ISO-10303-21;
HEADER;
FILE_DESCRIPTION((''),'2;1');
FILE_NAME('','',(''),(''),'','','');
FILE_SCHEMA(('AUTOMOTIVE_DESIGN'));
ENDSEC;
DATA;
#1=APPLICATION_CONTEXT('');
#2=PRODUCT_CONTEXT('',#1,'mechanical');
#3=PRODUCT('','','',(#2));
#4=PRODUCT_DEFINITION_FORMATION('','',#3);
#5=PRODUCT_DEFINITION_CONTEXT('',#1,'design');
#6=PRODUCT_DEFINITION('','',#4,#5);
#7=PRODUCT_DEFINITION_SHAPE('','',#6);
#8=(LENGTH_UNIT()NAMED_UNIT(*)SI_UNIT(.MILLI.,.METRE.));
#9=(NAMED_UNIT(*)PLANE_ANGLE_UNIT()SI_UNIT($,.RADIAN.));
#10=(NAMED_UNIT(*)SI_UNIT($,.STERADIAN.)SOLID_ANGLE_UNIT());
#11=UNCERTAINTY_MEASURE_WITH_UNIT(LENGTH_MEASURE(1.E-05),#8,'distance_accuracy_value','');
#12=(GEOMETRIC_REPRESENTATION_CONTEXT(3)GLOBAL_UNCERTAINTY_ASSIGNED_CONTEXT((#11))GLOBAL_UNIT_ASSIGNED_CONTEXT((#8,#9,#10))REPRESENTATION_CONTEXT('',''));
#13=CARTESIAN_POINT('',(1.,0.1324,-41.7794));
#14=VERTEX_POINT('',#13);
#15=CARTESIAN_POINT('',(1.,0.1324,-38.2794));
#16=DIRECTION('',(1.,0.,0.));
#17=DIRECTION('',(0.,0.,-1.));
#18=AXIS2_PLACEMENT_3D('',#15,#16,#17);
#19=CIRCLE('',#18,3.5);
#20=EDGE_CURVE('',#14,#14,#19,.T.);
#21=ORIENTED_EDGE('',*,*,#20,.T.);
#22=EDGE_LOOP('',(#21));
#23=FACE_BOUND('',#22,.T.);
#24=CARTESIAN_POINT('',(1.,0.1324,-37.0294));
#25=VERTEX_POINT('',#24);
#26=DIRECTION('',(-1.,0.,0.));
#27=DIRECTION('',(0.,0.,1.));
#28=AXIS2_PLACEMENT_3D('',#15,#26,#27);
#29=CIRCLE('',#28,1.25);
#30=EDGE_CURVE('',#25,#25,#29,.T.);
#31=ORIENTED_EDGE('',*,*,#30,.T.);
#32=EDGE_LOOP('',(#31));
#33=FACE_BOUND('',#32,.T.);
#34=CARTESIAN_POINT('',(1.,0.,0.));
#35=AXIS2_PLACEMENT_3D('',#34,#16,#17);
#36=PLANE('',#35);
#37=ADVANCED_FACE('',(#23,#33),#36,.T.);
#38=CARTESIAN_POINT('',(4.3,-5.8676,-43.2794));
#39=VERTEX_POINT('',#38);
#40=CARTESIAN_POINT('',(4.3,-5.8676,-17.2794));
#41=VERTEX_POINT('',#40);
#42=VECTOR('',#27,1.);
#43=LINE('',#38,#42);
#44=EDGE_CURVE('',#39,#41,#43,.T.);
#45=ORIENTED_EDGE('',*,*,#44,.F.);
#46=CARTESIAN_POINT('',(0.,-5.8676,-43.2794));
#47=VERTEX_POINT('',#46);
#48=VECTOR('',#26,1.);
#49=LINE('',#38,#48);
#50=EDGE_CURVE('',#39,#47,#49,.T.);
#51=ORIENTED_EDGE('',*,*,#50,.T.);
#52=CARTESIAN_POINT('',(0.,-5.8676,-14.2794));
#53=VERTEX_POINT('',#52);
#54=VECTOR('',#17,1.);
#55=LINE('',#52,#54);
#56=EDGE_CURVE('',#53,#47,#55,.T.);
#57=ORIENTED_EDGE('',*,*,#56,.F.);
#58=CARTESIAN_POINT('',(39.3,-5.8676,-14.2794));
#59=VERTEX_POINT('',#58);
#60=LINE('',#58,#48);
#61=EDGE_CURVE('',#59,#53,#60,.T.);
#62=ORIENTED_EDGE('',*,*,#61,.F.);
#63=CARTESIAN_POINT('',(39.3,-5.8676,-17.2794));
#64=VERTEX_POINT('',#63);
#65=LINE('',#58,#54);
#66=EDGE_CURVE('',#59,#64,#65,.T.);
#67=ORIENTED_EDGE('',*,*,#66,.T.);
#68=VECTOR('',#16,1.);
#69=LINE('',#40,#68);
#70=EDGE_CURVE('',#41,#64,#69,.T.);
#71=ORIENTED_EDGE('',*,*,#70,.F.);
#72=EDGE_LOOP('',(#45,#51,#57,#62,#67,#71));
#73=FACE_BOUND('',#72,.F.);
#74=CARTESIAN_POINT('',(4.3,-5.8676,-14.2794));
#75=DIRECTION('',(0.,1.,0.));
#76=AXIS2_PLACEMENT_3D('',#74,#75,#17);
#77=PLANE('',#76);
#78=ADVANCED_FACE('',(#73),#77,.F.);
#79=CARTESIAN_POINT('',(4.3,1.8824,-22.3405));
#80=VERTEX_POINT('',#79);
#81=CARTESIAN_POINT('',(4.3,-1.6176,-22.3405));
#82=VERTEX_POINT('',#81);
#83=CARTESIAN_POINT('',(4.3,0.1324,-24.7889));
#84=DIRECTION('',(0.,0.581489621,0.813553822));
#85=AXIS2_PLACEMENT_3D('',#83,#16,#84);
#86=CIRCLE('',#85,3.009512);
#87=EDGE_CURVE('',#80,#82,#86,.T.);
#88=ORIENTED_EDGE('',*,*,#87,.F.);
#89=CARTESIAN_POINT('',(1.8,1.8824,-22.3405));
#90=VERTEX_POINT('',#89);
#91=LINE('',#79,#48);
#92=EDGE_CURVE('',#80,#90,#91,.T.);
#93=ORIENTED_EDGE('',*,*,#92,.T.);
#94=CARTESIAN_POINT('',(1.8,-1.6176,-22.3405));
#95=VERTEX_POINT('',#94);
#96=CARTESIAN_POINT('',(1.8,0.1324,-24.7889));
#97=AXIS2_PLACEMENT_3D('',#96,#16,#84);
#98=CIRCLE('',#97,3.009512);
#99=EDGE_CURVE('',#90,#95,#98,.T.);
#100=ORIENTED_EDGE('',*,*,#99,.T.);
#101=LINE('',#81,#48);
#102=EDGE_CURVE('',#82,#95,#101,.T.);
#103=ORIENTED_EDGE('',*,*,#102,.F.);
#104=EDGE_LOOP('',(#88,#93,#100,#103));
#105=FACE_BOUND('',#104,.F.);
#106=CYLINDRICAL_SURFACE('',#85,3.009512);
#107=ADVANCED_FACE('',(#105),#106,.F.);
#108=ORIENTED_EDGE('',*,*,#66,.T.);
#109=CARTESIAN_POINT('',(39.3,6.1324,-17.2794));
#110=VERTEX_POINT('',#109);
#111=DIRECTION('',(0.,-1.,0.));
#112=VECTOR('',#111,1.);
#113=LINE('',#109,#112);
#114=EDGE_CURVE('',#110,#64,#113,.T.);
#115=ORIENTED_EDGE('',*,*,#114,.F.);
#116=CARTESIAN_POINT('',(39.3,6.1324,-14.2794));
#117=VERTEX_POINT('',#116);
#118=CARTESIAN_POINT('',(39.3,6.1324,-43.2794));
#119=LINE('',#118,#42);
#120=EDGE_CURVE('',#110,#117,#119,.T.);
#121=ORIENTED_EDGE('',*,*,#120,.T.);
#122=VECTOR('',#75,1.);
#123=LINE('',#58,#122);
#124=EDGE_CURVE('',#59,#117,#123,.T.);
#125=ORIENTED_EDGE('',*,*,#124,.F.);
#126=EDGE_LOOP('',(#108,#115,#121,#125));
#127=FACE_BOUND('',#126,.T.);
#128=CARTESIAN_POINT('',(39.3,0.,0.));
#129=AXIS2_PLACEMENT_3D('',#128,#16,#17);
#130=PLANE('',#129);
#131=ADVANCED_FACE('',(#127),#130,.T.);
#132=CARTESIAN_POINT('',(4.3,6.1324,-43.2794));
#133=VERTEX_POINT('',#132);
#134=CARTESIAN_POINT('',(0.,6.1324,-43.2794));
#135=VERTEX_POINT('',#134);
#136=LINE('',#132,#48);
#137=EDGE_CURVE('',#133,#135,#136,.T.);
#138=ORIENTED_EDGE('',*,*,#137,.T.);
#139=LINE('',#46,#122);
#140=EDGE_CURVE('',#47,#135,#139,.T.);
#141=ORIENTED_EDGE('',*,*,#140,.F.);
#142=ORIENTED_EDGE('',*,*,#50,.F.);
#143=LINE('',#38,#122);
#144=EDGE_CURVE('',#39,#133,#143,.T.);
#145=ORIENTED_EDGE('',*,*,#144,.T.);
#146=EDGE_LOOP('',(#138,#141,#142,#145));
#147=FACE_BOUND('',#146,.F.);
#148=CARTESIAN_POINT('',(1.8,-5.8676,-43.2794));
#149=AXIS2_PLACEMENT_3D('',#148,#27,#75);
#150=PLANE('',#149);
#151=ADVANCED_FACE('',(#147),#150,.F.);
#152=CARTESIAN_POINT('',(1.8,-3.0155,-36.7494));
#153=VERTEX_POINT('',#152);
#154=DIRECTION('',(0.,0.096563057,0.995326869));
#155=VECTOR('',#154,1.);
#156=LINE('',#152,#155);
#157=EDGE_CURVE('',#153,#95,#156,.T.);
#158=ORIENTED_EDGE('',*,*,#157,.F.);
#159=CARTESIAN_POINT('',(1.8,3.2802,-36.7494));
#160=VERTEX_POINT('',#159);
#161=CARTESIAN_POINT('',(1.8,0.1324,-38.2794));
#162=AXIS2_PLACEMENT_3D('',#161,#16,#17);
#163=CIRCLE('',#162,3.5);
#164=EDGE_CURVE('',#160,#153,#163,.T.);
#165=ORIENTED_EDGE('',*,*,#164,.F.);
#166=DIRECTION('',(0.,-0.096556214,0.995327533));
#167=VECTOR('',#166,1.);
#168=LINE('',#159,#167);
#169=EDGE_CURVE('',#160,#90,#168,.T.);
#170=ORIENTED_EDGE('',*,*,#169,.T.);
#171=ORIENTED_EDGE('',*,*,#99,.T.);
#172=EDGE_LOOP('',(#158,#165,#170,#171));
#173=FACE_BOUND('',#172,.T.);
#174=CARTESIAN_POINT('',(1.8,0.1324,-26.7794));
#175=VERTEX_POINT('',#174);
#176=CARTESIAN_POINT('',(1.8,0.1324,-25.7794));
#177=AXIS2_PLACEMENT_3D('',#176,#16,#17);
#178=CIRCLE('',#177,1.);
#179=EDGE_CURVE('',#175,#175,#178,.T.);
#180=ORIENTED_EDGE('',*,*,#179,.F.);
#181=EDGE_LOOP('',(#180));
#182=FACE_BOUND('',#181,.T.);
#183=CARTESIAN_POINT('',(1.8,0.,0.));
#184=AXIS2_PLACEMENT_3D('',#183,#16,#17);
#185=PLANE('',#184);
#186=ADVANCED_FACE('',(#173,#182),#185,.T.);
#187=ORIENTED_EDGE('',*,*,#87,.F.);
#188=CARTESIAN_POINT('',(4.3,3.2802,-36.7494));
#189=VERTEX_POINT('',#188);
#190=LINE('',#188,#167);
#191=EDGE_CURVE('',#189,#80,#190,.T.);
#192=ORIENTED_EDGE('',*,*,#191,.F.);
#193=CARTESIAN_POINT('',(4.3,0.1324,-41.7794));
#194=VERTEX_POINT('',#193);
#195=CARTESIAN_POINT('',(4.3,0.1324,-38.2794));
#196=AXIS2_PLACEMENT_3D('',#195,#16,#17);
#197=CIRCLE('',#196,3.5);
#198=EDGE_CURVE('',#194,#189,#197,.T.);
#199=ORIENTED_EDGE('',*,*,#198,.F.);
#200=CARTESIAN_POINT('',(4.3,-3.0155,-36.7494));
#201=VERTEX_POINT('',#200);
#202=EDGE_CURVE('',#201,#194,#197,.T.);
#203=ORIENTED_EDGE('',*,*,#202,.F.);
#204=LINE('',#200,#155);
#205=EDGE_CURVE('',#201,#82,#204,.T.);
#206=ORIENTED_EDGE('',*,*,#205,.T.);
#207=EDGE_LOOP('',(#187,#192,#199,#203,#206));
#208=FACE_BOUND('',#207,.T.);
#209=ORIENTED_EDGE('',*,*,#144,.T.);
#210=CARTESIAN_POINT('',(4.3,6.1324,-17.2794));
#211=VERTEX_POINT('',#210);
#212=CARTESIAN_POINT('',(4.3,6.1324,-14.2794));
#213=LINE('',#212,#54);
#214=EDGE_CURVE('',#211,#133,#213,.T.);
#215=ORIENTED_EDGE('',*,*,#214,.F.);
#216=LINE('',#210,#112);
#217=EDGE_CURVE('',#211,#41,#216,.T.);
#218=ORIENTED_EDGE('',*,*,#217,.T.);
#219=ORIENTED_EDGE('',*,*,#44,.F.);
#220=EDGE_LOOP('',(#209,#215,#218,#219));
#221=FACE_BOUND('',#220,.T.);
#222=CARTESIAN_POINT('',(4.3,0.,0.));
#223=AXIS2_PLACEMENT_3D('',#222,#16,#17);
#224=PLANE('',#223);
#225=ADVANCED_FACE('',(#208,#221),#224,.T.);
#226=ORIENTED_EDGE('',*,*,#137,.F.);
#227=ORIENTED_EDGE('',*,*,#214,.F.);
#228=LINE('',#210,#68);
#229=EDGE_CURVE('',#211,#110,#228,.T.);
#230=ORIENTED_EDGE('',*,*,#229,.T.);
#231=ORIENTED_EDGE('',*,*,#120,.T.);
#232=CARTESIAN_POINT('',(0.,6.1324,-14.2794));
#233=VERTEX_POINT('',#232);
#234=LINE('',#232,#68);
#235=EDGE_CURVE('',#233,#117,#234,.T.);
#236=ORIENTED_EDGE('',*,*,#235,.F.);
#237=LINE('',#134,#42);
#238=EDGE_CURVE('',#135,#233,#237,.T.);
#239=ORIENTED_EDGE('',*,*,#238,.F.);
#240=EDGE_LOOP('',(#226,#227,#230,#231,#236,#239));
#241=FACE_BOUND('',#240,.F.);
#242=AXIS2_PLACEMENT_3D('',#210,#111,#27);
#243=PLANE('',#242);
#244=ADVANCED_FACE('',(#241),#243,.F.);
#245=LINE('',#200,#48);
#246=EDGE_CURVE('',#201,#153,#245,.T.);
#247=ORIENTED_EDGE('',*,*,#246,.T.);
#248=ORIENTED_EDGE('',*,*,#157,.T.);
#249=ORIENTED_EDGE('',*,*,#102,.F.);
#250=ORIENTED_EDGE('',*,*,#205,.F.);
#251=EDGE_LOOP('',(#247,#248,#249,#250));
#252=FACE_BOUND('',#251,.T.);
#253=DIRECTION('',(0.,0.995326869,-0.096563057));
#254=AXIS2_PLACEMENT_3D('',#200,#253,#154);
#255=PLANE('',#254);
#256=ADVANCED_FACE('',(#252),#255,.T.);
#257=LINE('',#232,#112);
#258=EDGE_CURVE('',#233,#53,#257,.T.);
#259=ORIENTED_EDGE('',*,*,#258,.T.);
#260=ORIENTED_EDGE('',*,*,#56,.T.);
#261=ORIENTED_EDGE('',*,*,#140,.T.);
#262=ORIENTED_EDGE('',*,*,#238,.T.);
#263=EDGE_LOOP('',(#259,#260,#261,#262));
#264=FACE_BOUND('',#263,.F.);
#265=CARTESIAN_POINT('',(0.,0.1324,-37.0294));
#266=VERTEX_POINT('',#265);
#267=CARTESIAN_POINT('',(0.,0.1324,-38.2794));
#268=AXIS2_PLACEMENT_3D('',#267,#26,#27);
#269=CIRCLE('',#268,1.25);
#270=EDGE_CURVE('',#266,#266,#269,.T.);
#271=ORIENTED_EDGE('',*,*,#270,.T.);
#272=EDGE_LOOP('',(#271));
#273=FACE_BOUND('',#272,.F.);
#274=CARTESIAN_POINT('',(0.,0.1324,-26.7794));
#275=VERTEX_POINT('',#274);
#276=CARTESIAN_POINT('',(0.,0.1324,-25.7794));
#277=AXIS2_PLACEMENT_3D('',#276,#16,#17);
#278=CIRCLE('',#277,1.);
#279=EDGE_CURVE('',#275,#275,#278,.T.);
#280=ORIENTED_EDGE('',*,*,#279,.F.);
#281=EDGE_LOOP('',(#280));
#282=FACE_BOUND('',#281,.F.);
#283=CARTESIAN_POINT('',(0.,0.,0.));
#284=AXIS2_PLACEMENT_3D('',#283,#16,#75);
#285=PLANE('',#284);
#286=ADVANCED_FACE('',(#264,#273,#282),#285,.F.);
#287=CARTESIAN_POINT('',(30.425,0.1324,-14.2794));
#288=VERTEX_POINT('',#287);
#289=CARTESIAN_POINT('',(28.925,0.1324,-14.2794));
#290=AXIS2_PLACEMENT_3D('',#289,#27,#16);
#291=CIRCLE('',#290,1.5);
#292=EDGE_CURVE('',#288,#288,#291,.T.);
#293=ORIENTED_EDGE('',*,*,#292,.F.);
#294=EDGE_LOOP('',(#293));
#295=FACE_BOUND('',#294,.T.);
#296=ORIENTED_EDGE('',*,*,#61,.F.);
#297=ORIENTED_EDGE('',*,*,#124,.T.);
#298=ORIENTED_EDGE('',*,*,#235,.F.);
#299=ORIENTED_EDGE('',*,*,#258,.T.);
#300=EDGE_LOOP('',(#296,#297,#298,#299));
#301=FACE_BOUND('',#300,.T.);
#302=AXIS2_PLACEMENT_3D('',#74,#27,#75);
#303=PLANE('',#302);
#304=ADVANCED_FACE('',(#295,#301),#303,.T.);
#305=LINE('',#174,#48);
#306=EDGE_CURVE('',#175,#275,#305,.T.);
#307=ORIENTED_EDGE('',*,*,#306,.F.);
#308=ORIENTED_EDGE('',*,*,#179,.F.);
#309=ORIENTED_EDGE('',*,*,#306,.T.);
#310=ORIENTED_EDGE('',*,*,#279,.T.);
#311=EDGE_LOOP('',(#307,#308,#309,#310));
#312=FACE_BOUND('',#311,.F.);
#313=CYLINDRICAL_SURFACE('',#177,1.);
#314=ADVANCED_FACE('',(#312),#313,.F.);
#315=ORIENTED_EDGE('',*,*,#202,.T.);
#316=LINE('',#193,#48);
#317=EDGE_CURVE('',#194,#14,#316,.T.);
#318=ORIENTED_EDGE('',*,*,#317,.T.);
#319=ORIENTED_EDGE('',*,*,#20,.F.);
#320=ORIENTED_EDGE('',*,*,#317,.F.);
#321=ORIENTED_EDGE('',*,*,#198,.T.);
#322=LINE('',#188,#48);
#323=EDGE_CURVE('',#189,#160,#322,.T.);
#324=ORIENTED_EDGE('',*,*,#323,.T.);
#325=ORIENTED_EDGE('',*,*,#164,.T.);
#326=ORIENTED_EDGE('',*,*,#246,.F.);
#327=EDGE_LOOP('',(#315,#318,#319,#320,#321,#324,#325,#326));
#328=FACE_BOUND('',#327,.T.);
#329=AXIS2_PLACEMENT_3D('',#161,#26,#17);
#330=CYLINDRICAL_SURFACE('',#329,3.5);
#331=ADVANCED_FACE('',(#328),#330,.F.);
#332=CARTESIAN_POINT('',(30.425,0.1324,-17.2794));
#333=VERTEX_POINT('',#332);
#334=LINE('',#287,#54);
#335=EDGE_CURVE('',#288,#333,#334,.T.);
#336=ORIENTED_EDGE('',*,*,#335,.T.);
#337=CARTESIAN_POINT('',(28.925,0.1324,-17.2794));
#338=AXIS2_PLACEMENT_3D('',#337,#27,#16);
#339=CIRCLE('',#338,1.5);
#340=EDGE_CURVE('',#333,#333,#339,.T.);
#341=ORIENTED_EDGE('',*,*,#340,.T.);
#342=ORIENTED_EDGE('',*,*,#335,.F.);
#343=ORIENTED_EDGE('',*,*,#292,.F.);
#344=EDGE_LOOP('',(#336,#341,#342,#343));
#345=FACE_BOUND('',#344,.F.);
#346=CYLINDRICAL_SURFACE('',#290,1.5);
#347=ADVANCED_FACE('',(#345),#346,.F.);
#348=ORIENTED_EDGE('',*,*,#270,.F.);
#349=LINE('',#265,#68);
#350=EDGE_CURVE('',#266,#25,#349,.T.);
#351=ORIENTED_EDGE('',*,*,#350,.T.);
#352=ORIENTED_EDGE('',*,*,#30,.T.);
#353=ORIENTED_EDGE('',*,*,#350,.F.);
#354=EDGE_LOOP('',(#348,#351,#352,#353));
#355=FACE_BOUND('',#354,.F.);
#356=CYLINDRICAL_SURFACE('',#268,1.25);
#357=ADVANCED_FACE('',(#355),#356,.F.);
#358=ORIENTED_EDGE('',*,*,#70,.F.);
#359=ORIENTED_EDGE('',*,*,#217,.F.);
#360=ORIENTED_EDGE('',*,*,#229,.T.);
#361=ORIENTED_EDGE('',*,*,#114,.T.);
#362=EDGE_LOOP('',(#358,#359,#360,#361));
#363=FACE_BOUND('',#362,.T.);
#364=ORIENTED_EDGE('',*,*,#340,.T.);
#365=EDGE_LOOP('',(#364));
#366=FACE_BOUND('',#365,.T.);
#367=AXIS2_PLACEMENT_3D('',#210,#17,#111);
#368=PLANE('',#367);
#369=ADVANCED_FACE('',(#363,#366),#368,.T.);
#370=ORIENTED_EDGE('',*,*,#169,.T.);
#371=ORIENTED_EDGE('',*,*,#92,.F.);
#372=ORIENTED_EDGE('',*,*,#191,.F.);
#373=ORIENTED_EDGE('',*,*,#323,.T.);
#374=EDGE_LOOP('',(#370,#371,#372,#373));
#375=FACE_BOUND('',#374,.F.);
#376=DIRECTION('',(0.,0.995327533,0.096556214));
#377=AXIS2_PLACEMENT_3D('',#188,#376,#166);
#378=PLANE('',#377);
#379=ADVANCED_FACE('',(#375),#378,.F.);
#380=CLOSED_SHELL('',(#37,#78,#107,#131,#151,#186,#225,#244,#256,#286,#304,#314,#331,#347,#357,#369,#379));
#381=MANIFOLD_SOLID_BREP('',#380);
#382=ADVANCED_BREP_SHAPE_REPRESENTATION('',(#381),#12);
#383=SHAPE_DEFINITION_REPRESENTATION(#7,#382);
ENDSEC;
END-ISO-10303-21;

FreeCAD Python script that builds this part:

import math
import FreeCAD as App
import Part
import Sketcher
from FreeCAD import Vector
Q = App.Units.Quantity

doc = App.newDocument("Part")
body = doc.addObject("PartDesign::Body", "Body")

sketch1 = doc.addObject("Sketcher::SketchObject", "Sketch")
body.addObject(sketch1)
sketch1.AttachmentSupport = (doc.YZ_Plane, [""])
sketch1.MapMode = "FlatFace"
sketch1.addGeometry([
    Part.LineSegment(Vector(6, -43, 0), Vector(6, -14, 0)),
    Part.LineSegment(Vector(6, -14, 0), Vector(-6, -14, 0)),
    Part.LineSegment(Vector(-6, -14, 0), Vector(-6, -43, 0)),
    Part.LineSegment(Vector(-6, -43, 0), Vector(6, -43, 0)),
], False)
sketch1.addConstraint([
    Sketcher.Constraint("Coincident", 0, 2, 1, 1),
    Sketcher.Constraint("Coincident", 1, 2, 2, 1),
    Sketcher.Constraint("Coincident", 2, 2, 3, 1),
    Sketcher.Constraint("Coincident", 3, 2, 0, 1),
    Sketcher.Constraint("Vertical", 0),
    Sketcher.Constraint("Horizontal", 1),
    Sketcher.Constraint("Vertical", 2),
    Sketcher.Constraint("Horizontal", 3),
    Sketcher.Constraint("DistanceX", 1, 2, 1, 1, Q("12 mm")),
    Sketcher.Constraint("DistanceY", 0, 1, 0, 2, Q("29 mm")),
    Sketcher.Constraint("DistanceX", -1, 1, 0, 2, Q("6.1324 mm")),
    Sketcher.Constraint("DistanceY", 0, 2, -1, 1, Q("14.2794 mm")),
])
pad1 = doc.addObject("PartDesign::Pad", "Pad")
body.addObject(pad1)
pad1.Profile = sketch1
pad1.Length = 1.8

sketch2 = doc.addObject("Sketcher::SketchObject", "Sketch001")
body.addObject(sketch2)
sketch2.AttachmentSupport = (doc.YZ_Plane, [""])
sketch2.MapMode = "FlatFace"
sketch2.AttachmentOffset = App.Placement(Vector(0, 0, 1.8), App.Rotation())
sketch2.addGeometry(Part.Circle(Vector(0.1, -38.3, 0), Vector(0, 0, 1), 3.5), False)
sketch2.addConstraint([
    Sketcher.Constraint("Diameter", 0, Q("7 mm")),
    Sketcher.Constraint("DistanceX", -1, 1, 0, 3, Q("0.1324 mm")),
    Sketcher.Constraint("DistanceY", 0, 3, -1, 1, Q("38.2794 mm")),
])
pocket1 = doc.addObject("PartDesign::Pocket", "Pocket")
body.addObject(pocket1)
pocket1.Profile = sketch2
pocket1.Length = 0.8

sketch3 = doc.addObject("Sketcher::SketchObject", "Sketch002")
body.addObject(sketch3)
sketch3.AttachmentSupport = (doc.YZ_Plane, [""])
sketch3.MapMode = "FlatFace"
sketch3.AttachmentOffset = App.Placement(Vector(0, 0, 1.8), App.Rotation())
sketch3.addGeometry([
    Part.LineSegment(Vector(6.1, -43.3, 0), Vector(6.1, -14.3, 0)),
    Part.LineSegment(Vector(6.1, -14.3, 0), Vector(-5.9, -14.3, 0)),
    Part.LineSegment(Vector(-5.9, -14.3, 0), Vector(-5.9, -43.3, 0)),
    Part.LineSegment(Vector(-5.9, -43.3, 0), Vector(6.1, -43.3, 0)),
    Part.Circle(Vector(0.1, -38.3, 0), Vector(0, 0, 1), 3.5),
], False)
sketch3.addConstraint([
    Sketcher.Constraint("Coincident", 0, 2, 1, 1),
    Sketcher.Constraint("Coincident", 1, 2, 2, 1),
    Sketcher.Constraint("Coincident", 2, 2, 3, 1),
    Sketcher.Constraint("Coincident", 3, 2, 0, 1),
    Sketcher.Constraint("Vertical", 0),
    Sketcher.Constraint("Horizontal", 1),
    Sketcher.Constraint("Vertical", 2),
    Sketcher.Constraint("Horizontal", 3),
    Sketcher.Constraint("Diameter", 4, Q("7 mm")),
    Sketcher.Constraint("DistanceX", 1, 2, 1, 1, Q("12 mm")),
    Sketcher.Constraint("DistanceY", 0, 1, 0, 2, Q("29 mm")),
    Sketcher.Constraint("DistanceX", 4, 3, 0, 2, Q("6 mm")),
    Sketcher.Constraint("DistanceY", 4, 3, 0, 2, Q("24 mm")),
    Sketcher.Constraint("DistanceX", -1, 1, 4, 3, Q("0.1324 mm")),
    Sketcher.Constraint("DistanceY", 4, 3, -1, 1, Q("38.2794 mm")),
])
pad2 = doc.addObject("PartDesign::Pad", "Pad001")
body.addObject(pad2)
pad2.Profile = sketch3
pad2.Length = 2.5

sketch4 = doc.addObject("Sketcher::SketchObject", "Sketch003")
body.addObject(sketch4)
sketch4.AttachmentSupport = (doc.YZ_Plane, [""])
sketch4.MapMode = "FlatFace"
sketch4.AttachmentOffset = App.Placement(Vector(0, 0, 4.3), App.Rotation())
sketch4.addGeometry([
    Part.ArcOfCircle(Part.Circle(Vector(0.1, -38.3, 0), Vector(0, 0, 1), 3.5), math.radians(26), math.radians(154)),
    Part.LineSegment(Vector(3.3, -36.7, 0), Vector(1.9, -22.3, 0)),
    Part.ArcOfCircle(Part.Circle(Vector(0.1, -24.8, 0), Vector(0, 0, 1), 3), math.radians(54), math.radians(126)),
    Part.LineSegment(Vector(-1.6, -22.3, 0), Vector(-3, -36.7, 0)),
], False)
sketch4.addConstraint([
    Sketcher.Constraint("Coincident", 0, 1, 1, 1),
    Sketcher.Constraint("Coincident", 1, 2, 2, 1),
    Sketcher.Constraint("Coincident", 2, 2, 3, 1),
    Sketcher.Constraint("Coincident", 3, 2, 0, 2),
    Sketcher.Constraint("Horizontal", 1, 2, 2, 2),
    Sketcher.Constraint("Horizontal", 0, 1, 3, 2),
    Sketcher.Constraint("Vertical", 0, 3, 2, 3),
    Sketcher.Constraint("Radius", 0, Q("3.5 mm")),
    Sketcher.Constraint("DistanceX", 2, 2, 1, 2, Q("3.5 mm")),
    Sketcher.Constraint("DistanceY", 0, 3, 0, 1, Q("1.53 mm")),
    Sketcher.Constraint("Angle", 1, Q("95.541 deg")),
    Sketcher.Constraint("Radius", 2, Q("3.0095 mm")),
    Sketcher.Constraint("DistanceY", 2, 3, -1, 1, Q("24.789 mm")),
    Sketcher.Constraint("DistanceX", -1, 1, 0, 3, Q("0.1324 mm")),
])
pocket2 = doc.addObject("PartDesign::Pocket", "Pocket001")
body.addObject(pocket2)
pocket2.Profile = sketch4
pocket2.Length = 2.5

sketch5 = doc.addObject("Sketcher::SketchObject", "Sketch004")
body.addObject(sketch5)
sketch5.AttachmentSupport = (doc.YZ_Plane, [""])
sketch5.MapMode = "FlatFace"
sketch5.addGeometry(Part.Circle(Vector(0.1, -38.3, 0), Vector(0, 0, 1), 1.2), False)
sketch5.addConstraint([
    Sketcher.Constraint("Diameter", 0, Q("2.5 mm")),
    Sketcher.Constraint("DistanceX", -1, 1, 0, 3, Q("0.1324 mm")),
    Sketcher.Constraint("DistanceY", 0, 3, -1, 1, Q("38.2794 mm")),
])
pocket3 = doc.addObject("PartDesign::Pocket", "Pocket002")
body.addObject(pocket3)
pocket3.Profile = sketch5
pocket3.Length = 2.5
pocket3.Reversed = True

sketch6 = doc.addObject("Sketcher::SketchObject", "Sketch005")
body.addObject(sketch6)
sketch6.AttachmentSupport = (doc.YZ_Plane, [""])
sketch6.MapMode = "FlatFace"
sketch6.AttachmentOffset = App.Placement(Vector(0, 0, 4.3), App.Rotation())
sketch6.addGeometry([
    Part.LineSegment(Vector(-5.9, -17.3, 0), Vector(6.1, -17.3, 0)),
    Part.LineSegment(Vector(6.1, -17.3, 0), Vector(6.1, -14.3, 0)),
    Part.LineSegment(Vector(6.1, -14.3, 0), Vector(-5.9, -14.3, 0)),
    Part.LineSegment(Vector(-5.9, -14.3, 0), Vector(-5.9, -17.3, 0)),
], False)
sketch6.addConstraint([
    Sketcher.Constraint("Coincident", 0, 2, 1, 1),
    Sketcher.Constraint("Coincident", 1, 2, 2, 1),
    Sketcher.Constraint("Coincident", 2, 2, 3, 1),
    Sketcher.Constraint("Coincident", 3, 2, 0, 1),
    Sketcher.Constraint("Horizontal", 0),
    Sketcher.Constraint("Vertical", 1),
    Sketcher.Constraint("Horizontal", 2),
    Sketcher.Constraint("Vertical", 3),
    Sketcher.Constraint("DistanceY", 1, 1, 1, 2, Q("3 mm")),
    Sketcher.Constraint("DistanceX", 0, 1, 0, 2, Q("12 mm")),
    Sketcher.Constraint("DistanceX", -1, 1, 0, 2, Q("6.1324 mm")),
    Sketcher.Constraint("DistanceY", 0, 2, -1, 1, Q("17.2794 mm")),
])
pad3 = doc.addObject("PartDesign::Pad", "Pad002")
body.addObject(pad3)
pad3.Profile = sketch6
pad3.Length = 35

sketch7 = doc.addObject("Sketcher::SketchObject", "Sketch006")
body.addObject(sketch7)
sketch7.AttachmentSupport = (doc.XY_Plane, [""])
sketch7.MapMode = "FlatFace"
sketch7.AttachmentOffset = App.Placement(Vector(0, 0, -14.2794), App.Rotation())
sketch7.addGeometry(Part.Circle(Vector(28.9, 0.1, 0), Vector(0, 0, 1), 1.5), False)
sketch7.addConstraint([
    Sketcher.Constraint("Diameter", 0, Q("3 mm")),
    Sketcher.Constraint("DistanceX", -1, 1, 0, 3, Q("28.925 mm")),
    Sketcher.Constraint("DistanceY", -1, 1, 0, 3, Q("0.1324 mm")),
])
pocket4 = doc.addObject("PartDesign::Pocket", "Pocket003")
body.addObject(pocket4)
pocket4.Profile = sketch7
pocket4.Length = 40

sketch8 = doc.addObject("Sketcher::SketchObject", "Sketch007")
body.addObject(sketch8)
sketch8.AttachmentSupport = (doc.YZ_Plane, [""])
sketch8.MapMode = "FlatFace"
sketch8.AttachmentOffset = App.Placement(Vector(0, 0, 1.8), App.Rotation())
sketch8.addGeometry(Part.Circle(Vector(0.1, -25.8, 0), Vector(0, 0, 1), 1), False)
sketch8.addConstraint([
    Sketcher.Constraint("Diameter", 0, Q("2 mm")),
    Sketcher.Constraint("DistanceX", -1, 1, 0, 3, Q("0.1324 mm")),
    Sketcher.Constraint("DistanceY", 0, 3, -1, 1, Q("25.7794 mm")),
])
pocket5 = doc.addObject("PartDesign::Pocket", "Pocket004")
body.addObject(pocket5)
pocket5.Profile = sketch8
pocket5.Length = 10

doc.recompute()
